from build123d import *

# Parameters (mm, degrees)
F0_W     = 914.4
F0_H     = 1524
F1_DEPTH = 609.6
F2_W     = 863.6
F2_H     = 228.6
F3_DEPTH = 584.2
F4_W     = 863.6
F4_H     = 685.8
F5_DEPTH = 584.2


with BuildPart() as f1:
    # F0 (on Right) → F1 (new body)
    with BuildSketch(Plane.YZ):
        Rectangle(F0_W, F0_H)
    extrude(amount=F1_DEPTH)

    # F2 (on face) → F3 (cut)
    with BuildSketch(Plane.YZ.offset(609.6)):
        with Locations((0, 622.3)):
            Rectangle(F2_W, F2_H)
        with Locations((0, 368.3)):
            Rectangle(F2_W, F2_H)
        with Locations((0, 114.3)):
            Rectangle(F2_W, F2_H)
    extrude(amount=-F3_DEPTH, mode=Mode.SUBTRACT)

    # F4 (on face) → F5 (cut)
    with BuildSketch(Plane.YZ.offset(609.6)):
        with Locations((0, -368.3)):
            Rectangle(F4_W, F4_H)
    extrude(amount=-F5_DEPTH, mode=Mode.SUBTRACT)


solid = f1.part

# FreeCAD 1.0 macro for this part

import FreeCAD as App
import Part
import Sketcher
from FreeCAD import Vector
Q = App.Units.Quantity


def add_polygon(sketch, points):
    """Adds a closed chain of lines whose ends are joined by coincident constraints."""
    first, n = sketch.GeometryCount, len(points)
    for a, b in zip(points, points[1:] + points[:1]):
        sketch.addGeometry(Part.LineSegment(App.Vector(*a, 0), App.Vector(*b, 0)), False)
    for i in range(n):
        sketch.addConstraint(Sketcher.Constraint("Coincident", first + i, 2, first + (i + 1) % n, 1))

doc = App.newDocument("Part")
body = doc.addObject("PartDesign::Body", "Body")

sketch1 = body.newObject("Sketcher::SketchObject", "Sketch")
sketch1.AttachmentSupport = (doc.getObject("YZ_Plane"), [""])
sketch1.MapMode = "FlatFace"
add_polygon(sketch1, [(-457, 762), (-457, -762), (457, -762), (457, 762)])
sketch1.addConstraint([
    Sketcher.Constraint("Vertical", 0),
    Sketcher.Constraint("Horizontal", 1),
    Sketcher.Constraint("Vertical", 2),
    Sketcher.Constraint("Horizontal", 3),
    Sketcher.Constraint("Symmetric", 0, 2, 2, 2, -1, 1),
    Sketcher.Constraint("DistanceX", 1, 1, 1, 2, Q("36 in")),
    Sketcher.Constraint("DistanceY", 0, 2, 0, 1, Q("60 in")),
])
pad1 = body.newObject("PartDesign::Pad", "Pad")
pad1.Profile = sketch1
pad1.Length = Q("24 in")

sketch2 = body.newObject("Sketcher::SketchObject", "Sketch001")
sketch2.AttachmentSupport = (doc.getObject("YZ_Plane"), [""])
sketch2.MapMode = "FlatFace"
sketch2.AttachmentOffset = App.Placement(Vector(0, 0, 24 * 25.4), App.Rotation())
add_polygon(sketch2, [(-432, 737), (-432, 508), (432, 508), (432, 737)])
add_polygon(sketch2, [(-432, 483), (-432, 254), (432, 254), (432, 483)])
add_polygon(sketch2, [(-432, 229), (-432, 0), (432, 0), (432, 229)])
sketch2.addConstraint([
    Sketcher.Constraint("Vertical", 0),
    Sketcher.Constraint("Horizontal", 1),
    Sketcher.Constraint("Vertical", 2),
    Sketcher.Constraint("Horizontal", 3),
    Sketcher.Constraint("Vertical", 4),
    Sketcher.Constraint("Horizontal", 5),
    Sketcher.Constraint("Vertical", 6),
    Sketcher.Constraint("Horizontal", 7),
    Sketcher.Constraint("Vertical", 8),
    Sketcher.Constraint("Horizontal", 9),
    Sketcher.Constraint("Vertical", 10),
    Sketcher.Constraint("Horizontal", 11),
    Sketcher.Constraint("Symmetric", 8, 2, 9, 2, -1, 1),
    Sketcher.Constraint("Vertical", 3, 2, 4, 2),
    Sketcher.Constraint("Vertical", 2, 2, 5, 2),
    Sketcher.Constraint("Vertical", 7, 2, 8, 2),
    Sketcher.Constraint("Vertical", 6, 2, 9, 2),
    Sketcher.Constraint("Equal", 2, 4),
    Sketcher.Constraint("Equal", 6, 8),
    Sketcher.Constraint("DistanceX", 1, 1, 1, 2, Q("34 in")),
    Sketcher.Constraint("DistanceY", 0, 2, 0, 1, Q("9 in")),
    Sketcher.Constraint("DistanceY", -1, 1, 0, 2, Q("20 in")),
    Sketcher.Constraint("DistanceY", -1, 1, 4, 2, Q("10 in")),
])
pocket1 = body.newObject("PartDesign::Pocket", "Pocket")
pocket1.Profile = sketch2
pocket1.Length = Q("23 in")

sketch3 = body.newObject("Sketcher::SketchObject", "Sketch002")
sketch3.AttachmentSupport = (doc.getObject("YZ_Plane"), [""])
sketch3.MapMode = "FlatFace"
sketch3.AttachmentOffset = App.Placement(Vector(0, 0, 24 * 25.4), App.Rotation())
add_polygon(sketch3, [(-432, -25), (-432, -711), (432, -711), (432, -25)])
sketch3.addConstraint([
    Sketcher.Constraint("Vertical", 0),
    Sketcher.Constraint("Horizontal", 1),
    Sketcher.Constraint("Vertical", 2),
    Sketcher.Constraint("Horizontal", 3),
    Sketcher.Constraint("DistanceX", 1, 1, 1, 2, Q("34 in")),
    Sketcher.Constraint("DistanceY", 0, 2, 0, 1, Q("27 in")),
    Sketcher.Constraint("DistanceX", 0, 2, -1, 1, Q("17 in")),
    Sketcher.Constraint("DistanceY", 0, 2, -1, 1, Q("28 in")),
])
pocket2 = body.newObject("PartDesign::Pocket", "Pocket001")
pocket2.Profile = sketch3
pocket2.Length = Q("23 in")

doc.recompute()
